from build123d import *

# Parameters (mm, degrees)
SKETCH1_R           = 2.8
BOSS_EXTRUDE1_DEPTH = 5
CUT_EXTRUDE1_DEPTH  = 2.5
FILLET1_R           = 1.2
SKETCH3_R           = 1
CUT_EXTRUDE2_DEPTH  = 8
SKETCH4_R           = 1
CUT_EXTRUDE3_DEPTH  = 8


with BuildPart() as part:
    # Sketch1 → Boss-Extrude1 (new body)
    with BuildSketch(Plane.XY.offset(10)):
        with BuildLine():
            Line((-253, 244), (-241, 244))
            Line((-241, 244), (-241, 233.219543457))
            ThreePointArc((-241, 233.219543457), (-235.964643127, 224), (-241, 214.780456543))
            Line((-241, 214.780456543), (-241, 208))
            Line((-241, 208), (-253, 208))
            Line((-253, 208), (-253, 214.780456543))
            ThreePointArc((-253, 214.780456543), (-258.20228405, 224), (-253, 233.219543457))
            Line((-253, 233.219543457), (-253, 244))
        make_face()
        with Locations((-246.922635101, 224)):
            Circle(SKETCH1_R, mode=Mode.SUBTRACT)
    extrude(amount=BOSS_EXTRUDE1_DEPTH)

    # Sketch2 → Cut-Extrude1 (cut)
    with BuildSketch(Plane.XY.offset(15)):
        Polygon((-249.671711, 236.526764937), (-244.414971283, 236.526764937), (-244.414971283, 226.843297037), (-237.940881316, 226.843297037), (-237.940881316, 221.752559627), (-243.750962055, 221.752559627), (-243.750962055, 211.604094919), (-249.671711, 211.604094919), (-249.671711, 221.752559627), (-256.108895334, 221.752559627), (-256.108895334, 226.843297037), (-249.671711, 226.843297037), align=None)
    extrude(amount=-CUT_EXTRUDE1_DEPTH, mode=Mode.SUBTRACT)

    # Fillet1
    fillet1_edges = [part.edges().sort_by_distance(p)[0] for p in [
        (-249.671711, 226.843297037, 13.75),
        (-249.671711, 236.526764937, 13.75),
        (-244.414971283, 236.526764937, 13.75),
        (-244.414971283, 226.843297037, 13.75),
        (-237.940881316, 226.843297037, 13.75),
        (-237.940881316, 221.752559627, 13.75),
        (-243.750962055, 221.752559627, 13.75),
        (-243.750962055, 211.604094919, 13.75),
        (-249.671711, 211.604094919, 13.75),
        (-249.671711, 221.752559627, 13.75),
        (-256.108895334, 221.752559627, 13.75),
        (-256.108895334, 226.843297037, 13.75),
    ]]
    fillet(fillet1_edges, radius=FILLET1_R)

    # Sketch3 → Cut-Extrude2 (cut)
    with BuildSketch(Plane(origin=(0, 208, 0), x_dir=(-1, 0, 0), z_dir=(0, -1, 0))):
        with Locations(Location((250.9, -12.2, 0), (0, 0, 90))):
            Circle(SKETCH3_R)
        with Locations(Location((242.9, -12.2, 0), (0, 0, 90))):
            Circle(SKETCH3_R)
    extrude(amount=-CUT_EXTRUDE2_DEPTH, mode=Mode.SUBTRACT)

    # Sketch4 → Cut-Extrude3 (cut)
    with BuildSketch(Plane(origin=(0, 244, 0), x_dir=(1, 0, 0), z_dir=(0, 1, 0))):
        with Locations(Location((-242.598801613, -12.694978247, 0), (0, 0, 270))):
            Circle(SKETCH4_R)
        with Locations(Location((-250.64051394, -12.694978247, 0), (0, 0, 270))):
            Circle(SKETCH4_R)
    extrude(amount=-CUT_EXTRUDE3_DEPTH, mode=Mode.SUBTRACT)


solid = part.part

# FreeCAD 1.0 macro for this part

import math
import FreeCAD as App
import Part
import Sketcher
from FreeCAD import Vector
Q = App.Units.Quantity


def edges_at(feature, points):
    """Names of the edges that pass closest to the given points."""
    edges = feature.Shape.Edges
    near = lambda p: min(range(len(edges)), key=lambda i: edges[i].distToShape(Part.Vertex(*p))[0])
    return sorted({f"Edge{near(p) + 1}" for p in points})


def add_polygon(sketch, points):
    """Adds a closed chain of lines whose ends are joined by coincident constraints."""
    first, n = sketch.GeometryCount, len(points)
    for a, b in zip(points, points[1:] + points[:1]):
        sketch.addGeometry(Part.LineSegment(App.Vector(*a, 0), App.Vector(*b, 0)), False)
    for i in range(n):
        sketch.addConstraint(Sketcher.Constraint("Coincident", first + i, 2, first + (i + 1) % n, 1))

doc = App.newDocument("Part")
body = doc.addObject("PartDesign::Body", "Body")

# Sketch on XY plane
sketch1 = doc.addObject("Sketcher::SketchObject", "Sketch")
body.addObject(sketch1)
sketch1.AttachmentSupport = (doc.XY_Plane, [""])
sketch1.MapMode = "FlatFace"
sketch1.AttachmentOffset = App.Placement(Vector(0, 0, 10), App.Rotation())
sketch1.addGeometry(Part.LineSegment(Vector(-241, 244, 0), Vector(-253, 244, 0)), False)
sketch1.addGeometry(Part.LineSegment(Vector(-253, 244, 0), Vector(-253, 233.2, 0)), False)
sketch1.addGeometry(Part.ArcOfCircle(Part.Circle(Vector(-247.4, 224, 0), Vector(0, 0, 1), 10.8), math.radians(121), math.radians(239)), False)
sketch1.addGeometry(Part.LineSegment(Vector(-253, 214.8, 0), Vector(-253, 208, 0)), False)
sketch1.addGeometry(Part.LineSegment(Vector(-253, 208, 0), Vector(-241, 208, 0)), False)
sketch1.addGeometry(Part.LineSegment(Vector(-241, 208, 0), Vector(-241, 214.8, 0)), False)
sketch1.addGeometry(Part.ArcOfCircle(Part.Circle(Vector(-246.9, 224, 0), Vector(0, 0, 1), 11), math.radians(-57), math.radians(57)), False)
sketch1.addGeometry(Part.LineSegment(Vector(-241, 233.2, 0), Vector(-241, 244, 0)), False)
sketch1.addGeometry(Part.Circle(Vector(-246.9, 224, 0), Vector(0, 0, 1), 2.8), False)
sketch1.addConstraint(Sketcher.Constraint("Coincident", 0, 2, 1, 1))
sketch1.addConstraint(Sketcher.Constraint("Coincident", 1, 2, 2, 1))
sketch1.addConstraint(Sketcher.Constraint("Coincident", 2, 2, 3, 1))
sketch1.addConstraint(Sketcher.Constraint("Coincident", 3, 2, 4, 1))
sketch1.addConstraint(Sketcher.Constraint("Coincident", 4, 2, 5, 1))
sketch1.addConstraint(Sketcher.Constraint("Coincident", 5, 2, 6, 1))
sketch1.addConstraint(Sketcher.Constraint("Coincident", 6, 2, 7, 1))
sketch1.addConstraint(Sketcher.Constraint("Coincident", 7, 2, 0, 1))
sketch1.addConstraint(Sketcher.Constraint("Horizontal", 0))
sketch1.addConstraint(Sketcher.Constraint("Vertical", 1))
sketch1.addConstraint(Sketcher.Constraint("Vertical", 3))
sketch1.addConstraint(Sketcher.Constraint("Horizontal", 4))
sketch1.addConstraint(Sketcher.Constraint("Vertical", 5))
sketch1.addConstraint(Sketcher.Constraint("Vertical", 7))
sketch1.addConstraint(Sketcher.Constraint("Coincident", 8, 3, 6, 3))
sketch1.addConstraint(Sketcher.Constraint("Horizontal", 2, 3, 6, 3))
sketch1.addConstraint(Sketcher.Constraint("Horizontal", 2, 2, 5, 2))
sketch1.addConstraint(Sketcher.Constraint("Horizontal", 1, 2, 6, 2))
sketch1.addConstraint(Sketcher.Constraint("Vertical", 1, 2, 2, 2))
sketch1.addConstraint(Sketcher.Constraint("Diameter", 8, Q("5.6 mm")))
sketch1.addConstraint(Sketcher.Constraint("DistanceX", 0, 2, 0, 1, Q("12 mm")))
sketch1.addConstraint(Sketcher.Constraint("DistanceY", -1, 1, 2, 3, Q("224 mm")))
sketch1.addConstraint(Sketcher.Constraint("DistanceX", 0, 2, -1, 1, Q("253 mm")))
sketch1.addConstraint(Sketcher.Constraint("DistanceY", -1, 1, 0, 2, Q("244 mm")))
sketch1.addConstraint(Sketcher.Constraint("DistanceY", -1, 1, 3, 2, Q("208 mm")))
sketch1.addConstraint(Sketcher.Constraint("Radius", 2, Q("10.770629 mm")))
sketch1.addConstraint(Sketcher.Constraint("Radius", 6, Q("10.957992 mm")))
sketch1.addConstraint(Sketcher.Constraint("DistanceY", 1, 2, 1, 1, Q("10.780457 mm")))
pad1 = doc.addObject("PartDesign::Pad", "Pad")
body.addObject(pad1)
pad1.Profile = sketch1
pad1.Length = 5

# Sketch on XY plane
sketch2 = doc.addObject("Sketcher::SketchObject", "Sketch001")
body.addObject(sketch2)
sketch2.AttachmentSupport = (doc.XY_Plane, [""])
sketch2.MapMode = "FlatFace"
sketch2.AttachmentOffset = App.Placement(Vector(0, 0, 15), App.Rotation())
add_polygon(sketch2, [(-244, 237), (-250, 237), (-250, 227), (-256, 227), (-256, 222), (-250, 222), (-250, 212), (-244, 212), (-244, 222), (-238, 222), (-238, 227), (-244, 227)])  # lines 0-11
sketch2.addConstraint(Sketcher.Constraint("Horizontal", 0))
sketch2.addConstraint(Sketcher.Constraint("Vertical", 1))
sketch2.addConstraint(Sketcher.Constraint("Horizontal", 2))
sketch2.addConstraint(Sketcher.Constraint("Vertical", 3))
sketch2.addConstraint(Sketcher.Constraint("Horizontal", 4))
sketch2.addConstraint(Sketcher.Constraint("Vertical", 5))
sketch2.addConstraint(Sketcher.Constraint("Horizontal", 6))
sketch2.addConstraint(Sketcher.Constraint("Vertical", 7))
sketch2.addConstraint(Sketcher.Constraint("Horizontal", 8))
sketch2.addConstraint(Sketcher.Constraint("Vertical", 9))
sketch2.addConstraint(Sketcher.Constraint("Horizontal", 10))
sketch2.addConstraint(Sketcher.Constraint("Vertical", 11))
sketch2.addConstraint(Sketcher.Constraint("Horizontal", 4, 2, 7, 2))
sketch2.addConstraint(Sketcher.Constraint("Horizontal", 2, 2, 9, 2))
sketch2.addConstraint(Sketcher.Constraint("Vertical", 1, 2, 4, 2))
sketch2.addConstraint(Sketcher.Constraint("DistanceX", 0, 2, 0, 1, Q("5.25674 mm")))
sketch2.addConstraint(Sketcher.Constraint("DistanceX", 6, 1, 6, 2, Q("5.920749 mm")))
sketch2.addConstraint(Sketcher.Constraint("DistanceX", 8, 1, 8, 2, Q("5.810081 mm")))
sketch2.addConstraint(Sketcher.Constraint("DistanceX", 2, 2, 2, 1, Q("6.437184 mm")))
sketch2.addConstraint(Sketcher.Constraint("DistanceY", 1, 2, 1, 1, Q("9.683468 mm")))
sketch2.addConstraint(Sketcher.Constraint("DistanceY", 3, 2, 3, 1, Q("5.090737 mm")))
sketch2.addConstraint(Sketcher.Constraint("DistanceY", 5, 2, 5, 1, Q("10.148465 mm")))
sketch2.addConstraint(Sketcher.Constraint("DistanceX", 0, 2, -1, 1, Q("249.671711 mm")))
sketch2.addConstraint(Sketcher.Constraint("DistanceY", -1, 1, 3, 2, Q("221.75256 mm")))
pocket1 = doc.addObject("PartDesign::Pocket", "Pocket")
body.addObject(pocket1)
pocket1.Profile = sketch2
pocket1.Length = 2.5
doc.recompute()

fillet = doc.addObject("PartDesign::Fillet", "Fillet")
body.addObject(fillet)
fillet.Base = (pocket1, edges_at(pocket1, [
    (-249.672, 226.843, 13.75),
    (-249.672, 236.527, 13.75),
    (-244.415, 236.527, 13.75),
    (-244.415, 226.843, 13.75),
    (-237.941, 226.843, 13.75),
    (-237.941, 221.753, 13.75),
    (-243.751, 221.753, 13.75),
    (-243.751, 211.604, 13.75),
    (-249.672, 211.604, 13.75),
    (-249.672, 221.753, 13.75),
    (-256.109, 221.753, 13.75),
    (-256.109, 226.843, 13.75),
]))
fillet.Radius = 1.2

# Sketch on XZ plane
sketch3 = doc.addObject("Sketcher::SketchObject", "Sketch002")
body.addObject(sketch3)
sketch3.AttachmentSupport = (doc.XZ_Plane, [""])
sketch3.MapMode = "FlatFace"
sketch3.AttachmentOffset = App.Placement(Vector(0, 0, -208), App.Rotation())
sketch3.addGeometry(Part.Circle(Vector(-250.9, 12.2, 0), Vector(0, 0, 1), 1), False)
sketch3.addGeometry(Part.Circle(Vector(-242.9, 12.2, 0), Vector(0, 0, 1), 1), False)
sketch3.addConstraint(Sketcher.Constraint("Equal", 0, 1))
sketch3.addConstraint(Sketcher.Constraint("Horizontal", 0, 3, 1, 3))
sketch3.addConstraint(Sketcher.Constraint("Diameter", 0, Q("2 mm")))
sketch3.addConstraint(Sketcher.Constraint("DistanceX", 0, 3, 1, 3, Q("8 mm")))
sketch3.addConstraint(Sketcher.Constraint("DistanceX", 0, 3, -1, 1, Q("250.9 mm")))
sketch3.addConstraint(Sketcher.Constraint("DistanceY", -1, 1, 0, 3, Q("12.2 mm")))
pocket2 = doc.addObject("PartDesign::Pocket", "Pocket001")
body.addObject(pocket2)
pocket2.Profile = sketch3
pocket2.Length = 8

# Sketch on XZ plane
sketch4 = doc.addObject("Sketcher::SketchObject", "Sketch003")
body.addObject(sketch4)
sketch4.AttachmentSupport = (doc.XZ_Plane, [""])
sketch4.MapMode = "FlatFace"
sketch4.AttachmentOffset = App.Placement(Vector(0, 0, -244), App.Rotation())
sketch4.addGeometry(Part.Circle(Vector(-242.6, 12.7, 0), Vector(0, 0, 1), 1), False)
sketch4.addGeometry(Part.Circle(Vector(-250.6, 12.7, 0), Vector(0, 0, 1), 1), False)
sketch4.addConstraint(Sketcher.Constraint("Equal", 0, 1))
sketch4.addConstraint(Sketcher.Constraint("Horizontal", 0, 3, 1, 3))
sketch4.addConstraint(Sketcher.Constraint("Diameter", 0, Q("2 mm")))
sketch4.addConstraint(Sketcher.Constraint("DistanceX", 0, 3, -1, 1, Q("242.598802 mm")))
sketch4.addConstraint(Sketcher.Constraint("DistanceY", -1, 1, 0, 3, Q("12.694978 mm")))
sketch4.addConstraint(Sketcher.Constraint("DistanceX", 1, 3, -1, 1, Q("250.640514 mm")))
pocket3 = doc.addObject("PartDesign::Pocket", "Pocket002")
body.addObject(pocket3)
pocket3.Profile = sketch4
pocket3.Length = 8
pocket3.Reversed = True

doc.recompute()
